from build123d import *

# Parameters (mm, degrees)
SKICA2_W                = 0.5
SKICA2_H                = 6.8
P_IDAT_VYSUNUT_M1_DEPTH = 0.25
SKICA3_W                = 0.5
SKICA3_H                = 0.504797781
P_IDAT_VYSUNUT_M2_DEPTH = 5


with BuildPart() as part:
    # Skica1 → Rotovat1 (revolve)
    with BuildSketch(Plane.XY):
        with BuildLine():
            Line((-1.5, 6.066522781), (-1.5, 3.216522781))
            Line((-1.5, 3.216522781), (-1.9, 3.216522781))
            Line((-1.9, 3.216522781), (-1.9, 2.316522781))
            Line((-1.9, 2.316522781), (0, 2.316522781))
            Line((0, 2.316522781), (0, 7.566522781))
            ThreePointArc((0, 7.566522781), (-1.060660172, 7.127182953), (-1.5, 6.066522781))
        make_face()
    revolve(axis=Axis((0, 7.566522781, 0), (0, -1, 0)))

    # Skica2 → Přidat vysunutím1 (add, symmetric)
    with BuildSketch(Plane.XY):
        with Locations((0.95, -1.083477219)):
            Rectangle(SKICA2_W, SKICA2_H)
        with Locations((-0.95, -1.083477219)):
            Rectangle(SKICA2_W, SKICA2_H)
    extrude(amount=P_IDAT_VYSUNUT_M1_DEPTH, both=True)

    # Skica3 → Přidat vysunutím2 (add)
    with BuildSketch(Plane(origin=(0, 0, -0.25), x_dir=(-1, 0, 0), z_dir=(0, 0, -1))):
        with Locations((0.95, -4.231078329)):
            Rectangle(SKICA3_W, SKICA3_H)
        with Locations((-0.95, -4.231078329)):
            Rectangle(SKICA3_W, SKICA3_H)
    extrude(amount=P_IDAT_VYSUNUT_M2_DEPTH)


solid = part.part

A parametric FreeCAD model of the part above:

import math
import FreeCAD as App
import Part
import Sketcher
from FreeCAD import Vector


def add_polygon(sketch, points):
    """Adds a closed chain of lines whose ends are joined by coincident constraints."""
    first, n = sketch.GeometryCount, len(points)
    for a, b in zip(points, points[1:] + points[:1]):
        sketch.addGeometry(Part.LineSegment(App.Vector(*a, 0), App.Vector(*b, 0)), False)
    for i in range(n):
        sketch.addConstraint(Sketcher.Constraint("Coincident", first + i, 2, first + (i + 1) % n, 1))

doc = App.newDocument("Part")
body = doc.addObject("PartDesign::Body", "Body")

sketch1 = doc.addObject("Sketcher::SketchObject", "Sketch")
body.addObject(sketch1)
sketch1.AttachmentSupport = (doc.XY_Plane, [""])
sketch1.MapMode = "FlatFace"
sketch1.addGeometry(Part.LineSegment(Vector(-1.5, 6.07, 0), Vector(-1.5, 3.22, 0)), False)
sketch1.addGeometry(Part.LineSegment(Vector(-1.5, 3.22, 0), Vector(-1.9, 3.22, 0)), False)
sketch1.addGeometry(Part.LineSegment(Vector(-1.9, 3.22, 0), Vector(-1.9, 2.32, 0)), False)
sketch1.addGeometry(Part.LineSegment(Vector(-1.9, 2.32, 0), Vector(0, 2.32, 0)), False)
sketch1.addGeometry(Part.LineSegment(Vector(0, 2.32, 0), Vector(0, 7.57, 0)), False)
sketch1.addGeometry(Part.ArcOfCircle(Part.Circle(Vector(0, 6.07, 0), Vector(0, 0, 1), 1.5), math.radians(90), math.radians(180)), False)
sketch1.addConstraint(Sketcher.Constraint("Coincident", 0, 2, 1, 1))
sketch1.addConstraint(Sketcher.Constraint("Coincident", 1, 2, 2, 1))
sketch1.addConstraint(Sketcher.Constraint("Coincident", 2, 2, 3, 1))
sketch1.addConstraint(Sketcher.Constraint("Coincident", 3, 2, 4, 1))
sketch1.addConstraint(Sketcher.Constraint("Coincident", 4, 2, 5, 1))
sketch1.addConstraint(Sketcher.Constraint("Tangent", 5, 2, 0, 1))
sketch1.addConstraint(Sketcher.Constraint("Vertical", 0))
sketch1.addConstraint(Sketcher.Constraint("Horizontal", 1))
sketch1.addConstraint(Sketcher.Constraint("Vertical", 2))
sketch1.addConstraint(Sketcher.Constraint("Horizontal", 3))
sketch1.addConstraint(Sketcher.Constraint("Vertical", 4))
sketch1.addConstraint(Sketcher.Constraint("PointOnObject", 5, 3, -2))
sketch1.addConstraint(Sketcher.Constraint("PointOnObject", 3, 2, -2))
sketch1.addConstraint(Sketcher.Constraint("Radius", 5, 1.5))
sketch1.addConstraint(Sketcher.Constraint("DistanceX", 1, 2, 1, 1, 0.4))
sketch1.addConstraint(Sketcher.Constraint("DistanceY", 2, 2, 2, 1, 0.9))
sketch1.addConstraint(Sketcher.Constraint("DistanceY", 0, 2, 0, 1, 2.85))
sketch1.addConstraint(Sketcher.Constraint("DistanceY", -1, 1, 5, 3, 6.066523))
revolution = doc.addObject("PartDesign::Revolution", "Revolution")
body.addObject(revolution)
revolution.Profile = sketch1
revolution.ReferenceAxis = (sketch1, ["V_Axis"])
revolution.Angle = 360

sketch2 = doc.addObject("Sketcher::SketchObject", "Sketch001")
body.addObject(sketch2)
sketch2.AttachmentSupport = (doc.XY_Plane, [""])
sketch2.MapMode = "FlatFace"
add_polygon(sketch2, [(0.7, 2.3), (0.7, -4.5), (1.2, -4.5), (1.2, 2.3)])
add_polygon(sketch2, [(-1.2, 2.3), (-1.2, -4.5), (-0.7, -4.5), (-0.7, 2.3)])
sketch2.addConstraint(Sketcher.Constraint("Vertical", 0))
sketch2.addConstraint(Sketcher.Constraint("Horizontal", 1))
sketch2.addConstraint(Sketcher.Constraint("Vertical", 2))
sketch2.addConstraint(Sketcher.Constraint("Horizontal", 3))
sketch2.addConstraint(Sketcher.Constraint("Vertical", 4))
sketch2.addConstraint(Sketcher.Constraint("Horizontal", 5))
sketch2.addConstraint(Sketcher.Constraint("Vertical", 6))
sketch2.addConstraint(Sketcher.Constraint("Horizontal", 7))
sketch2.addConstraint(Sketcher.Constraint("Symmetric", 1, 2, 4, 2, -2))
sketch2.addConstraint(Sketcher.Constraint("Symmetric", 3, 2, 6, 2, -2))
sketch2.addConstraint(Sketcher.Constraint("DistanceX", 1, 1, 1, 2, 0.5))
sketch2.addConstraint(Sketcher.Constraint("DistanceY", 0, 2, 0, 1, 6.8))
sketch2.addConstraint(Sketcher.Constraint("DistanceX", -1, 1, 0, 2, 0.7))
sketch2.addConstraint(Sketcher.Constraint("DistanceY", 0, 2, -1, 1, 4.483477))
pad1 = doc.addObject("PartDesign::Pad", "Pad")
body.addObject(pad1)
pad1.Profile = sketch2
pad1.Length = 0.5
pad1.Midplane = True

sketch3 = doc.addObject("Sketcher::SketchObject", "Sketch002")
body.addObject(sketch3)
sketch3.AttachmentSupport = (doc.XY_Plane, [""])
sketch3.MapMode = "FlatFace"
sketch3.AttachmentOffset = App.Placement(Vector(0, 0, -0.25), App.Rotation())
add_polygon(sketch3, [(-0.7, -4), (-0.7, -4.5), (-1.2, -4.5), (-1.2, -4)])
add_polygon(sketch3, [(1.2, -4), (1.2, -4.5), (0.7, -4.5), (0.7, -4)])
sketch3.addConstraint(Sketcher.Constraint("Vertical", 0))
sketch3.addConstraint(Sketcher.Constraint("Horizontal", 1))
sketch3.addConstraint(Sketcher.Constraint("Vertical", 2))
sketch3.addConstraint(Sketcher.Constraint("Horizontal", 3))
sketch3.addConstraint(Sketcher.Constraint("Vertical", 4))
sketch3.addConstraint(Sketcher.Constraint("Horizontal", 5))
sketch3.addConstraint(Sketcher.Constraint("Vertical", 6))
sketch3.addConstraint(Sketcher.Constraint("Horizontal", 7))
sketch3.addConstraint(Sketcher.Constraint("Symmetric", 1, 2, 4, 2, -2))
sketch3.addConstraint(Sketcher.Constraint("Symmetric", 3, 2, 6, 2, -2))
sketch3.addConstraint(Sketcher.Constraint("DistanceX", 1, 2, 1, 1, 0.5))
sketch3.addConstraint(Sketcher.Constraint("DistanceX", 0, 2, -1, 1, 0.7))
sketch3.addConstraint(Sketcher.Constraint("DistanceY", 0, 2, 0, 1, 0.504798))
sketch3.addConstraint(Sketcher.Constraint("DistanceY", 2, 2, -1, 1, 3.978679))
pad2 = doc.addObject("PartDesign::Pad", "Pad001")
body.addObject(pad2)
pad2.Profile = sketch3
pad2.Length = 5
pad2.Reversed = True

doc.recompute()
